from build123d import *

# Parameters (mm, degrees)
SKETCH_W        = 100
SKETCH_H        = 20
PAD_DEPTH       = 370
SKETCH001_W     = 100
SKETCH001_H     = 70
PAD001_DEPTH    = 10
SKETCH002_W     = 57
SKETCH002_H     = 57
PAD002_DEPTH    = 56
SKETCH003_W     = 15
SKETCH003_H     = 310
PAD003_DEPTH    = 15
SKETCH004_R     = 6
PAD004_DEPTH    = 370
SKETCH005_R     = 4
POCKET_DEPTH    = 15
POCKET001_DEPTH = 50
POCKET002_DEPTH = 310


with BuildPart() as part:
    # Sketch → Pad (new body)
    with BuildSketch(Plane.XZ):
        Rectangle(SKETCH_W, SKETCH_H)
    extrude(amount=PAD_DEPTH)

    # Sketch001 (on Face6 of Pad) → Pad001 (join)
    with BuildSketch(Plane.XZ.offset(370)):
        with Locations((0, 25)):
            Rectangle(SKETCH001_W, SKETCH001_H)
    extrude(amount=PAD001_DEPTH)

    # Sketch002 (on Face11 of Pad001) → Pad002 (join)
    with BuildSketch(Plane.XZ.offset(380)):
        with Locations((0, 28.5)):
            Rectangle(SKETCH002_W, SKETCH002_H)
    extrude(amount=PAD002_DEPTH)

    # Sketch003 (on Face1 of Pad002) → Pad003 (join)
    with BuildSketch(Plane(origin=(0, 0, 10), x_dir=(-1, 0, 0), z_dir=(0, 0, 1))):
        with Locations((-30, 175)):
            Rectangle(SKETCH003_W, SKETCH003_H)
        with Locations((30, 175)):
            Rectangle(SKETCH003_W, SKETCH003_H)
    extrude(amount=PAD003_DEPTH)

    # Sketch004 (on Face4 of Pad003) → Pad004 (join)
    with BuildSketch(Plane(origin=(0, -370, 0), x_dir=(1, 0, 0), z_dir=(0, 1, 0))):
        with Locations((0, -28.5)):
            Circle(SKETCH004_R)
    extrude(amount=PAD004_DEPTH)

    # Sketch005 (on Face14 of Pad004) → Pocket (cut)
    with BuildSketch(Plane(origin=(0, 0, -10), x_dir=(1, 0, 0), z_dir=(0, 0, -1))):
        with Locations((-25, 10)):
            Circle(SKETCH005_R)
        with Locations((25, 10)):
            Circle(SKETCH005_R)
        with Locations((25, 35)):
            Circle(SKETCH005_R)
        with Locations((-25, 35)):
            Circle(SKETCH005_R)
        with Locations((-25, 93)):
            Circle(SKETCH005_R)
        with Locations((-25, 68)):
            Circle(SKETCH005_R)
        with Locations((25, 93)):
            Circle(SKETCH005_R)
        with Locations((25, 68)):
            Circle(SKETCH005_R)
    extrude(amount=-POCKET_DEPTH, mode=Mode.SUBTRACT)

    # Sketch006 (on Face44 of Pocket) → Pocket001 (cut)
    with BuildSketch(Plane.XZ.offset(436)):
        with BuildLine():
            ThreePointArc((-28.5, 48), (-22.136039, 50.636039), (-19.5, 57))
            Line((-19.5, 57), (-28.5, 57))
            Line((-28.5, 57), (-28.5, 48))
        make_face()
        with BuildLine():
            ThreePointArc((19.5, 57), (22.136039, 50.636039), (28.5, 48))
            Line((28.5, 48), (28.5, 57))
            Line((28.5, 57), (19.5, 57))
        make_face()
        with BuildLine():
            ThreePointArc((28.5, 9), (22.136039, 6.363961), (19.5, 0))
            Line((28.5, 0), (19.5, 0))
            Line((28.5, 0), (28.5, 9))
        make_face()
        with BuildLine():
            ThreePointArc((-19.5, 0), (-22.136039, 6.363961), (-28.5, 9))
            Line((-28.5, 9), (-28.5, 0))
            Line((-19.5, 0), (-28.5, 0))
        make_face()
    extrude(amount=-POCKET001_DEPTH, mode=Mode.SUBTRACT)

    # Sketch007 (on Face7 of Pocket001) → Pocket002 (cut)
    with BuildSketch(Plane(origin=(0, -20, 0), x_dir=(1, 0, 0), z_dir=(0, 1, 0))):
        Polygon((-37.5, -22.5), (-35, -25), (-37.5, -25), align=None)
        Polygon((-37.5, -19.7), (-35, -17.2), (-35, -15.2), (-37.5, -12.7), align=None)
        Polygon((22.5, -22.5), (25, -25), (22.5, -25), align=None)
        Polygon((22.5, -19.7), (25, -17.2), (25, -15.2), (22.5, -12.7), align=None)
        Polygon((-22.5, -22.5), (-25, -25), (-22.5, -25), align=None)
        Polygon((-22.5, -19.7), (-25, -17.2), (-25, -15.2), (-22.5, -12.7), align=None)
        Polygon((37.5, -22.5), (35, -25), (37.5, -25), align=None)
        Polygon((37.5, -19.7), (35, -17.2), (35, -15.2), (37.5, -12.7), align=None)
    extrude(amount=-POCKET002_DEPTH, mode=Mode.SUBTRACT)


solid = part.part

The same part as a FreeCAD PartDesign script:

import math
import FreeCAD as App
import Part
import Sketcher
from FreeCAD import Vector
Q = App.Units.Quantity


def add_polygon(sketch, points):
    """Adds a closed chain of lines whose ends are joined by coincident constraints."""
    first, n = sketch.GeometryCount, len(points)
    for a, b in zip(points, points[1:] + points[:1]):
        sketch.addGeometry(Part.LineSegment(App.Vector(*a, 0), App.Vector(*b, 0)), False)
    for i in range(n):
        sketch.addConstraint(Sketcher.Constraint("Coincident", first + i, 2, first + (i + 1) % n, 1))

doc = App.newDocument("Part")
params = doc.addObject("Spreadsheet::Sheet", "Params")
for row, (alias, value) in enumerate([
    ("sketch1_width", "100 mm"),
    ("sketch1_height", "20 mm"),
    ("pad1_length", "370 mm"),
    ("sketch2_width", "100 mm"),
    ("sketch2_height", "70 mm"),
    ("pad2_length", "10 mm"),
    ("sketch3_width", "57 mm"),
    ("pad3_length", "56 mm"),
    ("sketch4_width", "15 mm"),
    ("sketch4_height", "310 mm"),
    ("pad4_length", "15 mm"),
    ("sketch5_diameter", "12 mm"),
    ("pad5_length", "370 mm"),
    ("sketch6_diameter", "8 mm"),
    ("pocket1_length", "15 mm"),
    ("sketch7_radius", "9 mm"),
    ("pocket2_length", "50 mm"),
    ("sketch8_height", "2 mm"),
    ("sketch8_height2", "7 mm"),
    ("pocket3_length", "310 mm"),
], start=1):
    params.set(f"A{row}", alias)
    params.set(f"B{row}", "=" + value)
    params.setAlias(f"B{row}", alias)

body = doc.addObject("PartDesign::Body", "Body")

# Sketch on XZ plane
sketch1 = body.newObject("Sketcher::SketchObject", "Sketch")
sketch1.AttachmentSupport = (doc.getObject("XZ_Plane"), [""])
sketch1.MapMode = "FlatFace"
add_polygon(sketch1, [(-50, 10), (-50, -10), (50, -10), (50, 10)])  # lines 0-3
sketch1.addConstraint(Sketcher.Constraint("Vertical", 0))
sketch1.addConstraint(Sketcher.Constraint("Horizontal", 1))
sketch1.addConstraint(Sketcher.Constraint("Vertical", 2))
sketch1.addConstraint(Sketcher.Constraint("Horizontal", 3))
sketch1.addConstraint(Sketcher.Constraint("Symmetric", 0, 2, 2, 2, -1, 1))
sketch1.addConstraint(Sketcher.Constraint("DistanceX", 1, 1, 1, 2, Q("100 mm")))
sketch1.addConstraint(Sketcher.Constraint("DistanceY", 0, 2, 0, 1, Q("20 mm")))
sketch1.setExpression("Constraints[9]", "Params.sketch1_width")
sketch1.setExpression("Constraints[10]", "Params.sketch1_height")
pad1 = body.newObject("PartDesign::Pad", "Pad")
pad1.Profile = sketch1
pad1.setExpression("Length", "Params.pad1_length")

# Sketch on XZ plane
sketch2 = body.newObject("Sketcher::SketchObject", "Sketch001")
sketch2.AttachmentSupport = (doc.getObject("XZ_Plane"), [""])
sketch2.MapMode = "FlatFace"
sketch2.AttachmentOffset = App.Placement(Vector(0, 0, 370), App.Rotation())
add_polygon(sketch2, [(-50, 60), (-50, -10), (50, -10), (50, 60)])  # lines 0-3
sketch2.addConstraint(Sketcher.Constraint("Vertical", 0))
sketch2.addConstraint(Sketcher.Constraint("Horizontal", 1))
sketch2.addConstraint(Sketcher.Constraint("Vertical", 2))
sketch2.addConstraint(Sketcher.Constraint("Horizontal", 3))
sketch2.addConstraint(Sketcher.Constraint("DistanceX", 1, 1, 1, 2, Q("100 mm")))
sketch2.addConstraint(Sketcher.Constraint("DistanceY", 0, 2, 0, 1, Q("70 mm")))
sketch2.addConstraint(Sketcher.Constraint("DistanceX", 0, 2, -1, 1, Q("50 mm")))
sketch2.addConstraint(Sketcher.Constraint("DistanceY", 0, 2, -1, 1, Q("10 mm")))
sketch2.setExpression("Constraints[8]", "Params.sketch2_width")
sketch2.setExpression("Constraints[9]", "Params.sketch2_height")
pad2 = body.newObject("PartDesign::Pad", "Pad001")
pad2.Profile = sketch2
pad2.setExpression("Length", "Params.pad2_length")

# Sketch on XZ plane
sketch3 = body.newObject("Sketcher::SketchObject", "Sketch002")
sketch3.AttachmentSupport = (doc.getObject("XZ_Plane"), [""])
sketch3.MapMode = "FlatFace"
sketch3.AttachmentOffset = App.Placement(Vector(0, 0, 380), App.Rotation())
add_polygon(sketch3, [(-28, 57), (-28, 0), (28, 0), (28, 57)])  # lines 0-3
sketch3.addConstraint(Sketcher.Constraint("Vertical", 0))
sketch3.addConstraint(Sketcher.Constraint("Horizontal", 1))
sketch3.addConstraint(Sketcher.Constraint("Vertical", 2))
sketch3.addConstraint(Sketcher.Constraint("Horizontal", 3))
sketch3.addConstraint(Sketcher.Constraint("Symmetric", 0, 2, 1, 2, -1, 1))
sketch3.addConstraint(Sketcher.Constraint("Equal", 3, 0))
sketch3.addConstraint(Sketcher.Constraint("DistanceX", 1, 1, 1, 2, Q("57 mm")))
sketch3.setExpression("Constraints[10]", "Params.sketch3_width")
pad3 = body.newObject("PartDesign::Pad", "Pad002")
pad3.Profile = sketch3
pad3.setExpression("Length", "Params.pad3_length")

# Sketch on XY plane
sketch4 = body.newObject("Sketcher::SketchObject", "Sketch003")
sketch4.AttachmentSupport = (doc.getObject("XY_Plane"), [""])
sketch4.MapMode = "FlatFace"
sketch4.AttachmentOffset = App.Placement(Vector(0, 0, 10), App.Rotation())
add_polygon(sketch4, [(38, -330), (38, -20), (22, -20), (22, -330)])  # lines 0-3
add_polygon(sketch4, [(-22, -330), (-22, -20), (-38, -20), (-38, -330)])  # lines 4-7
sketch4.addConstraint(Sketcher.Constraint("Vertical", 0))
sketch4.addConstraint(Sketcher.Constraint("Horizontal", 1))
sketch4.addConstraint(Sketcher.Constraint("Vertical", 2))
sketch4.addConstraint(Sketcher.Constraint("Horizontal", 3))
sketch4.addConstraint(Sketcher.Constraint("Vertical", 4))
sketch4.addConstraint(Sketcher.Constraint("Horizontal", 5))
sketch4.addConstraint(Sketcher.Constraint("Vertical", 6))
sketch4.addConstraint(Sketcher.Constraint("Horizontal", 7))
sketch4.addConstraint(Sketcher.Constraint("Symmetric", 1, 2, 4, 2, -2))
sketch4.addConstraint(Sketcher.Constraint("Symmetric", 3, 2, 6, 2, -2))
sketch4.addConstraint(Sketcher.Constraint("DistanceX", 1, 2, 1, 1, Q("15 mm")))
sketch4.addConstraint(Sketcher.Constraint("DistanceY", 0, 1, 0, 2, Q("310 mm")))
sketch4.addConstraint(Sketcher.Constraint("DistanceY", 0, 2, -1, 1, Q("20 mm")))
sketch4.addConstraint(Sketcher.Constraint("DistanceX", 4, 2, 1, 2, Q("45 mm")))
sketch4.setExpression("Constraints[18]", "Params.sketch4_width")
sketch4.setExpression("Constraints[19]", "Params.sketch4_height")
pad4 = body.newObject("PartDesign::Pad", "Pad003")
pad4.Profile = sketch4
pad4.setExpression("Length", "Params.pad4_length")

# Sketch on XZ plane
sketch5 = body.newObject("Sketcher::SketchObject", "Sketch004")
sketch5.AttachmentSupport = (doc.getObject("XZ_Plane"), [""])
sketch5.MapMode = "FlatFace"
sketch5.AttachmentOffset = App.Placement(Vector(0, 0, 370), App.Rotation())
sketch5.addGeometry(Part.Circle(Vector(0, 28, 0), Vector(0, 0, 1), 6), False)
sketch5.addConstraint(Sketcher.Constraint("PointOnObject", 0, 3, -2))
sketch5.addConstraint(Sketcher.Constraint("Diameter", 0, Q("12 mm")))
sketch5.addConstraint(Sketcher.Constraint("DistanceY", -1, 1, 0, 3, Q("28.5 mm")))
sketch5.setExpression("Constraints[1]", "Params.sketch5_diameter")
pad5 = body.newObject("PartDesign::Pad", "Pad004")
pad5.Profile = sketch5
pad5.setExpression("Length", "Params.pad5_length")
pad5.Reversed = True

# Sketch on XY plane
sketch6 = body.newObject("Sketcher::SketchObject", "Sketch005")
sketch6.AttachmentSupport = (doc.getObject("XY_Plane"), [""])
sketch6.MapMode = "FlatFace"
sketch6.AttachmentOffset = App.Placement(Vector(0, 0, -10), App.Rotation())
sketch6.addGeometry(Part.Circle(Vector(-25, -10, 0), Vector(0, 0, 1), 4), False)
sketch6.addGeometry(Part.Circle(Vector(25, -10, 0), Vector(0, 0, 1), 4), False)
sketch6.addGeometry(Part.Circle(Vector(25, -35, 0), Vector(0, 0, 1), 4), False)
sketch6.addGeometry(Part.Circle(Vector(-25, -35, 0), Vector(0, 0, 1), 4), False)
sketch6.addGeometry(Part.Circle(Vector(-25, -93, 0), Vector(0, 0, 1), 4), False)
sketch6.addGeometry(Part.Circle(Vector(-25, -68, 0), Vector(0, 0, 1), 4), False)
sketch6.addGeometry(Part.Circle(Vector(25, -93, 0), Vector(0, 0, 1), 4), False)
sketch6.addGeometry(Part.Circle(Vector(25, -68, 0), Vector(0, 0, 1), 4), False)
sketch6.addConstraint(Sketcher.Constraint("Equal", 0, 1))
sketch6.addConstraint(Sketcher.Constraint("Equal", 1, 2))
sketch6.addConstraint(Sketcher.Constraint("Equal", 2, 3))
sketch6.addConstraint(Sketcher.Constraint("Equal", 3, 4))
sketch6.addConstraint(Sketcher.Constraint("Equal", 4, 5))
sketch6.addConstraint(Sketcher.Constraint("Equal", 5, 6))
sketch6.addConstraint(Sketcher.Constraint("Equal", 6, 7))
sketch6.addConstraint(Sketcher.Constraint("Symmetric", 0, 3, 1, 3, -2))
sketch6.addConstraint(Sketcher.Constraint("Symmetric", 2, 3, 3, 3, -2))
sketch6.addConstraint(Sketcher.Constraint("Symmetric", 4, 3, 6, 3, -2))
sketch6.addConstraint(Sketcher.Constraint("Symmetric", 5, 3, 7, 3, -2))
sketch6.addConstraint(Sketcher.Constraint("Vertical", 1, 3, 2, 3))
sketch6.addConstraint(Sketcher.Constraint("Vertical", 3, 3, 4, 3))
sketch6.addConstraint(Sketcher.Constraint("Vertical", 4, 3, 5, 3))
sketch6.addConstraint(Sketcher.Constraint("Diameter", 0, Q("8 mm")))
sketch6.addConstraint(Sketcher.Constraint("DistanceX", 0, 3, -1, 1, Q("25 mm")))
sketch6.addConstraint(Sketcher.Constraint("DistanceY", 0, 3, -1, 1, Q("10 mm")))
sketch6.addConstraint(Sketcher.Constraint("DistanceY", 2, 3, -1, 1, Q("35 mm")))
sketch6.addConstraint(Sketcher.Constraint("DistanceY", 4, 3, -1, 1, Q("93 mm")))
sketch6.addConstraint(Sketcher.Constraint("DistanceY", 5, 3, -1, 1, Q("68 mm")))
sketch6.setExpression("Constraints[14]", "Params.sketch6_diameter")
pocket1 = body.newObject("PartDesign::Pocket", "Pocket")
pocket1.Profile = sketch6
pocket1.setExpression("Length", "Params.pocket1_length")
pocket1.Reversed = True

# Sketch on XZ plane
sketch7 = body.newObject("Sketcher::SketchObject", "Sketch006")
sketch7.AttachmentSupport = (doc.getObject("XZ_Plane"), [""])
sketch7.MapMode = "FlatFace"
sketch7.AttachmentOffset = App.Placement(Vector(0, 0, 436), App.Rotation())
sketch7.addGeometry(Part.ArcOfCircle(Part.Circle(Vector(-29, 57, 0), Vector(0, 0, 1), 9), math.radians(-90), math.radians(0)), False)
sketch7.addGeometry(Part.LineSegment(Vector(-20, 57, 0), Vector(-28, 57, 0)), False)
sketch7.addGeometry(Part.LineSegment(Vector(-28, 57, 0), Vector(-28, 48, 0)), False)
sketch7.addGeometry(Part.ArcOfCircle(Part.Circle(Vector(29, 57, 0), Vector(0, 0, 1), 9), math.radians(-180), math.radians(-90)), False)
sketch7.addGeometry(Part.LineSegment(Vector(28, 48, 0), Vector(28, 57, 0)), False)
sketch7.addGeometry(Part.LineSegment(Vector(28, 57, 0), Vector(20, 57, 0)), False)
sketch7.addGeometry(Part.ArcOfCircle(Part.Circle(Vector(29, 0, 0), Vector(0, 0, 1), 9), math.radians(90), math.radians(180)), False)
sketch7.addGeometry(Part.LineSegment(Vector(20, 0, 0), Vector(28, 0, 0)), False)
sketch7.addGeometry(Part.LineSegment(Vector(28, 0, 0), Vector(28, 9, 0)), False)
sketch7.addGeometry(Part.ArcOfCircle(Part.Circle(Vector(-29, 0, 0), Vector(0, 0, 1), 9), math.radians(0), math.radians(90)), False)
sketch7.addGeometry(Part.LineSegment(Vector(-28, 9, 0), Vector(-28, 0, 0)), False)
sketch7.addGeometry(Part.LineSegment(Vector(-28, 0, 0), Vector(-20, 0, 0)), False)
sketch7.addConstraint(Sketcher.Constraint("Coincident", 0, 2, 1, 1))
sketch7.addConstraint(Sketcher.Constraint("Coincident", 1, 2, 2, 1))
sketch7.addConstraint(Sketcher.Constraint("Coincident", 2, 2, 0, 1))
sketch7.addConstraint(Sketcher.Constraint("Coincident", 3, 2, 4, 1))
sketch7.addConstraint(Sketcher.Constraint("Coincident", 4, 2, 5, 1))
sketch7.addConstraint(Sketcher.Constraint("Coincident", 5, 2, 3, 1))
sketch7.addConstraint(Sketcher.Constraint("Coincident", 6, 2, 7, 1))
sketch7.addConstraint(Sketcher.Constraint("Coincident", 7, 2, 8, 1))
sketch7.addConstraint(Sketcher.Constraint("Coincident", 8, 2, 6, 1))
sketch7.addConstraint(Sketcher.Constraint("Coincident", 9, 2, 10, 1))
sketch7.addConstraint(Sketcher.Constraint("Coincident", 10, 2, 11, 1))
sketch7.addConstraint(Sketcher.Constraint("Coincident", 11, 2, 9, 1))
sketch7.addConstraint(Sketcher.Constraint("Horizontal", 1))
sketch7.addConstraint(Sketcher.Constraint("Vertical", 2))
sketch7.addConstraint(Sketcher.Constraint("Vertical", 4))
sketch7.addConstraint(Sketcher.Constraint("Horizontal", 5))
sketch7.addConstraint(Sketcher.Constraint("Horizontal", 7))
sketch7.addConstraint(Sketcher.Constraint("Vertical", 8))
sketch7.addConstraint(Sketcher.Constraint("Vertical", 10))
sketch7.addConstraint(Sketcher.Constraint("Horizontal", 11))
sketch7.addConstraint(Sketcher.Constraint("Coincident", 1, 2, 0, 3))
sketch7.addConstraint(Sketcher.Constraint("Coincident", 4, 2, 3, 3))
sketch7.addConstraint(Sketcher.Constraint("Coincident", 7, 2, 6, 3))
sketch7.addConstraint(Sketcher.Constraint("Coincident", 10, 2, 9, 3))
sketch7.addConstraint(Sketcher.Constraint("Equal", 0, 3))
sketch7.addConstraint(Sketcher.Constraint("Equal", 3, 6))
sketch7.addConstraint(Sketcher.Constraint("Equal", 6, 9))
sketch7.addConstraint(Sketcher.Constraint("Symmetric", 6, 3, 9, 3, -1, 1))
sketch7.addConstraint(Sketcher.Constraint("Symmetric", 0, 3, 3, 3, -2))
sketch7.addConstraint(Sketcher.Constraint("PointOnObject", 6, 3, -1))
sketch7.addConstraint(Sketcher.Constraint("Vertical", 3, 3, 6, 3))
sketch7.addConstraint(Sketcher.Constraint("Radius", 0, Q("9 mm")))
sketch7.addConstraint(Sketcher.Constraint("DistanceY", -1, 1, 0, 3, Q("57 mm")))
sketch7.addConstraint(Sketcher.Constraint("DistanceX", 0, 3, 3, 3, Q("57 mm")))
sketch7.setExpression("Constraints[31]", "Params.sketch7_radius")
pocket2 = body.newObject("PartDesign::Pocket", "Pocket001")
pocket2.Profile = sketch7
pocket2.setExpression("Length", "Params.pocket2_length")

# Sketch on XZ plane
sketch8 = body.newObject("Sketcher::SketchObject", "Sketch007")
sketch8.AttachmentSupport = (doc.getObject("XZ_Plane"), [""])
sketch8.MapMode = "FlatFace"
sketch8.AttachmentOffset = App.Placement(Vector(0, 0, 20), App.Rotation())
add_polygon(sketch8, [(-35, 25), (-37.5, 22.5), (-37.5, 25)])  # lines 0-2
add_polygon(sketch8, [(-37.5, 19.7), (-35, 17.2), (-35, 15.2), (-37.5, 12.7)])  # lines 3-6
add_polygon(sketch8, [(25, 25), (22.5, 22.5), (22.5, 25)])  # lines 7-9
add_polygon(sketch8, [(22.5, 19.7), (25, 17.2), (25, 15.2), (22.5, 12.7)])  # lines 10-13
add_polygon(sketch8, [(-22.5, 22.5), (-25, 25), (-22.5, 25)])  # lines 14-16
add_polygon(sketch8, [(-25, 17.2), (-22.5, 19.7), (-22.5, 12.7), (-25, 15.2)])  # lines 17-20
add_polygon(sketch8, [(37.5, 22.5), (35, 25), (37.5, 25)])  # lines 21-23
add_polygon(sketch8, [(35, 17.2), (37.5, 19.7), (37.5, 12.7), (35, 15.2)])  # lines 24-27
sketch8.addConstraint(Sketcher.Constraint("Vertical", 1))
sketch8.addConstraint(Sketcher.Constraint("Horizontal", 2))
sketch8.addConstraint(Sketcher.Constraint("Vertical", 4))
sketch8.addConstraint(Sketcher.Constraint("Vertical", 6))
sketch8.addConstraint(Sketcher.Constraint("Vertical", 8))
sketch8.addConstraint(Sketcher.Constraint("Horizontal", 9))
sketch8.addConstraint(Sketcher.Constraint("Vertical", 11))
sketch8.addConstraint(Sketcher.Constraint("Vertical", 13))
sketch8.addConstraint(Sketcher.Constraint("Horizontal", 15))
sketch8.addConstraint(Sketcher.Constraint("Vertical", 16))
sketch8.addConstraint(Sketcher.Constraint("Vertical", 18))
sketch8.addConstraint(Sketcher.Constraint("Vertical", 20))
sketch8.addConstraint(Sketcher.Constraint("Horizontal", 22))
sketch8.addConstraint(Sketcher.Constraint("Vertical", 23))
sketch8.addConstraint(Sketcher.Constraint("Vertical", 25))
sketch8.addConstraint(Sketcher.Constraint("Vertical", 27))
sketch8.addConstraint(Sketcher.Constraint("Symmetric", 9, 2, 14, 2, -2))
sketch8.addConstraint(Sketcher.Constraint("Symmetric", 7, 2, 16, 2, -2))
sketch8.addConstraint(Sketcher.Constraint("Symmetric", 13, 2, 17, 2, -2))
sketch8.addConstraint(Sketcher.Constraint("Symmetric", 11, 2, 19, 2, -2))
sketch8.addConstraint(Sketcher.Constraint("Symmetric", 2, 2, 21, 2, -2))
sketch8.addConstraint(Sketcher.Constraint("Symmetric", 0, 2, 23, 2, -2))
sketch8.addConstraint(Sketcher.Constraint("Symmetric", 6, 2, 24, 2, -2))
sketch8.addConstraint(Sketcher.Constraint("Symmetric", 4, 2, 26, 2, -2))
sketch8.addConstraint(Sketcher.Constraint("Perpendicular", 0, 3))
sketch8.addConstraint(Sketcher.Constraint("Perpendicular", 3, 5))
sketch8.addConstraint(Sketcher.Constraint("Parallel", 5, 7))
sketch8.addConstraint(Sketcher.Constraint("Perpendicular", 7, 10))
sketch8.addConstraint(Sketcher.Constraint("Perpendicular", 10, 12))
sketch8.addConstraint(Sketcher.Constraint("Perpendicular", 12, 14))
sketch8.addConstraint(Sketcher.Constraint("Perpendicular", 14, 17))
sketch8.addConstraint(Sketcher.Constraint("Perpendicular", 17, 19))
sketch8.addConstraint(Sketcher.Constraint("Perpendicular", 21, 24))
sketch8.addConstraint(Sketcher.Constraint("Perpendicular", 24, 26))
sketch8.addConstraint(Sketcher.Constraint("Horizontal", 0, 2, 7, 2))
sketch8.addConstraint(Sketcher.Constraint("Horizontal", 2, 2, 8, 2))
sketch8.addConstraint(Sketcher.Constraint("Horizontal", 3, 2, 10, 2))
sketch8.addConstraint(Sketcher.Constraint("Horizontal", 4, 2, 11, 2))
sketch8.addConstraint(Sketcher.Constraint("Horizontal", 5, 2, 12, 2))
sketch8.addConstraint(Sketcher.Constraint("Vertical", 2, 2, 3, 2))
sketch8.addConstraint(Sketcher.Constraint("Vertical", 1, 2, 5, 2))
sketch8.addConstraint(Sketcher.Constraint("Vertical", 9, 2, 10, 2))
sketch8.addConstraint(Sketcher.Constraint("DistanceY", 4, 2, 4, 1, Q("2 mm")))
sketch8.addConstraint(Sketcher.Constraint("DistanceY", 6, 1, 6, 2, Q("7 mm")))
sketch8.addConstraint(Sketcher.Constraint("DistanceY", -1, 1, 1, 2, Q("25 mm")))
sketch8.addConstraint(Sketcher.Constraint("DistanceX", 2, 2, -1, 1, Q("35 mm")))
sketch8.addConstraint(Sketcher.Constraint("DistanceX", -1, 1, 9, 2, Q("25 mm")))
sketch8.addConstraint(Sketcher.Constraint("DistanceY", -1, 1, 3, 2, Q("17.2 mm")))
sketch8.setExpression("Constraints[70]", "Params.sketch8_height")
sketch8.setExpression("Constraints[71]", "Params.sketch8_height2")
pocket3 = body.newObject("PartDesign::Pocket", "Pocket002")
pocket3.Profile = sketch8
pocket3.setExpression("Length", "Params.pocket3_length")
pocket3.Reversed = True

doc.recompute()
